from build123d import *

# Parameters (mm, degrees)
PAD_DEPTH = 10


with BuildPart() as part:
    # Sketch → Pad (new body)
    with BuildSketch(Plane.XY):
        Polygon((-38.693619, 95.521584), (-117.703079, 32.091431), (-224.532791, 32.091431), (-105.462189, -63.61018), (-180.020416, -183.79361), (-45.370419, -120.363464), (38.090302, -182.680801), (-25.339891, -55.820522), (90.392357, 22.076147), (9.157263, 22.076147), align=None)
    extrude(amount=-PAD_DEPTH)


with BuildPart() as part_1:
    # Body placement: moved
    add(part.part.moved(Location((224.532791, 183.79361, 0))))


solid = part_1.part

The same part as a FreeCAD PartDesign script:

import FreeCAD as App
import Part
import Sketcher
Q = App.Units.Quantity


def add_polygon(sketch, points):
    """Adds a closed chain of lines whose ends are joined by coincident constraints."""
    first, n = sketch.GeometryCount, len(points)
    for a, b in zip(points, points[1:] + points[:1]):
        sketch.addGeometry(Part.LineSegment(App.Vector(*a, 0), App.Vector(*b, 0)), False)
    for i in range(n):
        sketch.addConstraint(Sketcher.Constraint("Coincident", first + i, 2, first + (i + 1) % n, 1))

doc = App.newDocument("Part")
params = doc.addObject("Spreadsheet::Sheet", "Params")
for row, (alias, value) in enumerate([
    ("pad1_length", "10 mm"),
], start=1):
    params.set(f"A{row}", alias)
    params.set(f"B{row}", "=" + value)
    params.setAlias(f"B{row}", alias)

body = doc.addObject("PartDesign::Body", "Body")

# Sketch on XY plane
sketch1 = body.newObject("Sketcher::SketchObject", "Sketch")
sketch1.AttachmentSupport = (doc.getObject("XY_Plane"), [""])
sketch1.MapMode = "FlatFace"
add_polygon(sketch1, [(-38.693619, 95.521584), (-117.703079, 32.091431), (-224.532791, 32.091431), (-105.462189, -63.61018), (-180.020416, -183.79361), (-45.370419, -120.363464), (38.090302, -182.680801), (-25.339891, -55.820522), (90.392357, 22.076147), (9.157263, 22.076147)])  # lines 0-9
sketch1.addConstraint([
    Sketcher.Constraint("Horizontal", 1),
    Sketcher.Constraint("Horizontal", 8),
    Sketcher.Constraint("DistanceX", 1, 2, 1, 1, Q("106.829712 mm")),
    Sketcher.Constraint("DistanceY", 5, 2, -1, 1, Q("182.680801 mm")),
    Sketcher.Constraint("DistanceX", 2, 2, 6, 2, Q("80.122298 mm")),
    Sketcher.Constraint("Distance", 9, Q("87.658081 mm")),
    Sketcher.Constraint("DistanceX", 8, 2, 8, 1, Q("81.235094 mm")),
    Sketcher.Constraint("DistanceX", 0, 2, -1, 1, Q("117.703079 mm")),
    Sketcher.Constraint("DistanceY", -1, 1, 0, 2, Q("32.091431 mm")),
    Sketcher.Constraint("DistanceX", 2, 2, -1, 1, Q("105.462189 mm")),
    Sketcher.Constraint("DistanceY", 2, 2, -1, 1, Q("63.61018 mm")),
    Sketcher.Constraint("DistanceY", 3, 2, -1, 1, Q("183.79361 mm")),
    Sketcher.Constraint("DistanceX", 4, 2, -1, 1, Q("45.370419 mm")),
    Sketcher.Constraint("DistanceY", 6, 2, -1, 1, Q("55.820522 mm")),
    Sketcher.Constraint("DistanceX", 9, 2, -1, 1, Q("38.693619 mm")),
    Sketcher.Constraint("DistanceX", 4, 2, 5, 2, Q("83.460721 mm")),
    Sketcher.Constraint("DistanceX", 3, 2, 5, 2, Q("218.110718 mm")),
    Sketcher.Constraint("DistanceY", 4, 2, 6, 2, Q("64.542942 mm")),
    Sketcher.Constraint("DistanceX", 6, 2, 7, 2, Q("115.732248 mm")),
    Sketcher.Constraint("DistanceY", 6, 2, 7, 2, Q("77.896669 mm")),
])
pad1 = body.newObject("PartDesign::Pad", "Pad")
pad1.Profile = sketch1
pad1.setExpression("Length", "Params.pad1_length")
pad1.Reversed = True
body2 = doc.addObject("PartDesign::Body", "Body001")
doc.recompute()

body.Placement = App.Placement(App.Vector(224.532791, 183.79361, 0), App.Rotation(App.Vector(0, 0, 1), 0))
boolean = body2.newObject("PartDesign::Boolean", "Boolean")
boolean.Type = "Fuse"
boolean.addObjects([body])

doc.recompute()
